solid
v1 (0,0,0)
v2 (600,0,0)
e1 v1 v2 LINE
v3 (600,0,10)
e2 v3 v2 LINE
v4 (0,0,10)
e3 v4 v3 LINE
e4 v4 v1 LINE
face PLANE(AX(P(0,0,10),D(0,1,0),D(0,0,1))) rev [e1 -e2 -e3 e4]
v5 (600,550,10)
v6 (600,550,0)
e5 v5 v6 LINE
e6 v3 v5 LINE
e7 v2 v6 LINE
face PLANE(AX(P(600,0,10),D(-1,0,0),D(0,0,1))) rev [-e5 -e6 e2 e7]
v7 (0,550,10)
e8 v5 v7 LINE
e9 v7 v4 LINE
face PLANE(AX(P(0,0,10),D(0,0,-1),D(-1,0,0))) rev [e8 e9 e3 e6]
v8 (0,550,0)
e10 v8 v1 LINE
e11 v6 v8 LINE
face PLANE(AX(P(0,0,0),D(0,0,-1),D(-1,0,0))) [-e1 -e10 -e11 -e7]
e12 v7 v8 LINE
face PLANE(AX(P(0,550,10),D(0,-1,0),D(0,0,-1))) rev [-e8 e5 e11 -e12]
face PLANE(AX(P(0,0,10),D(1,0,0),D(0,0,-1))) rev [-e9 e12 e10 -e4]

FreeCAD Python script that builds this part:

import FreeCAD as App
import Part
import Sketcher

V = App.Vector
Q = App.Units.Quantity


def add_polygon(sketch, points):
    """Adds a closed chain of lines whose ends are joined by coincident constraints."""
    first, n = sketch.GeometryCount, len(points)
    for a, b in zip(points, points[1:] + points[:1]):
        sketch.addGeometry(Part.LineSegment(App.Vector(*a, 0), App.Vector(*b, 0)), False)
    for i in range(n):
        sketch.addConstraint(Sketcher.Constraint("Coincident", first + i, 2, first + (i + 1) % n, 1))

doc = App.newDocument("Part")
body = doc.addObject("PartDesign::Body", "Body")

sketch1 = body.newObject("Sketcher::SketchObject", "Sketch")
sketch1.AttachmentSupport = (doc.getObject("XY_Plane"), [""])
sketch1.MapMode = "FlatFace"
add_polygon(sketch1, [(0, 550), (0, 0), (600, 0), (600, 550)])
sketch1.addConstraint(Sketcher.Constraint("Vertical", 0))
sketch1.addConstraint(Sketcher.Constraint("Horizontal", 1))
sketch1.addConstraint(Sketcher.Constraint("Vertical", 2))
sketch1.addConstraint(Sketcher.Constraint("Horizontal", 3))
sketch1.addConstraint(Sketcher.Constraint("Coincident", 0, 2, -1, 1))
sketch1.addConstraint(Sketcher.Constraint("DistanceX", 1, 1, 1, 2, Q("600 mm")))
sketch1.addConstraint(Sketcher.Constraint("DistanceY", 0, 2, 0, 1, Q("550 mm")))
pad1 = body.newObject("PartDesign::Pad", "Pad")
pad1.Profile = sketch1
pad1.Length = 10

doc.recompute()
